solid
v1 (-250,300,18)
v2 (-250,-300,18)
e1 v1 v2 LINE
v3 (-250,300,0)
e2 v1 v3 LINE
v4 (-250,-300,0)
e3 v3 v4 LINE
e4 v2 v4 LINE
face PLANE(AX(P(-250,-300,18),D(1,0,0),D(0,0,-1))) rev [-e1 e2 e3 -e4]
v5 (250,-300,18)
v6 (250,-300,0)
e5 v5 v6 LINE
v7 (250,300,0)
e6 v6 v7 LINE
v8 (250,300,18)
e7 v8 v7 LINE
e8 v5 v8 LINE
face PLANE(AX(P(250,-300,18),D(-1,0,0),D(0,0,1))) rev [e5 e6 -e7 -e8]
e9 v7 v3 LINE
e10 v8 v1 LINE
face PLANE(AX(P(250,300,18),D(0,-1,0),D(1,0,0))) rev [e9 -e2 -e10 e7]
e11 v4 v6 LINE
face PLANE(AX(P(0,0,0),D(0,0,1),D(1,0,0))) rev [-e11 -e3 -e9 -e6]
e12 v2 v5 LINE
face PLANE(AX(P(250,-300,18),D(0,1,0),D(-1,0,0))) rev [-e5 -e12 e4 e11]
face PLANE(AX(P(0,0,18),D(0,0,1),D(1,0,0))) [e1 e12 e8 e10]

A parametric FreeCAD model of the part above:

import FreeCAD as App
import Part
import Sketcher

V = App.Vector
Q = App.Units.Quantity


def add_polygon(sketch, points):
    """Adds a closed chain of lines whose ends are joined by coincident constraints."""
    first, n = sketch.GeometryCount, len(points)
    for a, b in zip(points, points[1:] + points[:1]):
        sketch.addGeometry(Part.LineSegment(App.Vector(*a, 0), App.Vector(*b, 0)), False)
    for i in range(n):
        sketch.addConstraint(Sketcher.Constraint("Coincident", first + i, 2, first + (i + 1) % n, 1))

doc = App.newDocument("Part")
body = doc.addObject("PartDesign::Body", "Body")

# Sketch on XY plane
sketch1 = doc.addObject("Sketcher::SketchObject", "Sketch")
body.addObject(sketch1)
sketch1.AttachmentSupport = (doc.XY_Plane, [""])
sketch1.MapMode = "FlatFace"
add_polygon(sketch1, [(-250, 300), (-250, -300), (250, -300), (250, 300)])  # lines 0-3
sketch1.addConstraint(Sketcher.Constraint("Vertical", 0))
sketch1.addConstraint(Sketcher.Constraint("Horizontal", 1))
sketch1.addConstraint(Sketcher.Constraint("Vertical", 2))
sketch1.addConstraint(Sketcher.Constraint("Horizontal", 3))
sketch1.addConstraint(Sketcher.Constraint("Symmetric", 0, 2, 2, 2, -1, 1))
sketch1.addConstraint(Sketcher.Constraint("DistanceX", 1, 1, 1, 2, Q("500 mm")))
sketch1.addConstraint(Sketcher.Constraint("DistanceY", 0, 2, 0, 1, Q("600 mm")))
pad1 = doc.addObject("PartDesign::Pad", "Pad")
body.addObject(pad1)
pad1.Profile = sketch1
pad1.Length = 18

doc.recompute()
